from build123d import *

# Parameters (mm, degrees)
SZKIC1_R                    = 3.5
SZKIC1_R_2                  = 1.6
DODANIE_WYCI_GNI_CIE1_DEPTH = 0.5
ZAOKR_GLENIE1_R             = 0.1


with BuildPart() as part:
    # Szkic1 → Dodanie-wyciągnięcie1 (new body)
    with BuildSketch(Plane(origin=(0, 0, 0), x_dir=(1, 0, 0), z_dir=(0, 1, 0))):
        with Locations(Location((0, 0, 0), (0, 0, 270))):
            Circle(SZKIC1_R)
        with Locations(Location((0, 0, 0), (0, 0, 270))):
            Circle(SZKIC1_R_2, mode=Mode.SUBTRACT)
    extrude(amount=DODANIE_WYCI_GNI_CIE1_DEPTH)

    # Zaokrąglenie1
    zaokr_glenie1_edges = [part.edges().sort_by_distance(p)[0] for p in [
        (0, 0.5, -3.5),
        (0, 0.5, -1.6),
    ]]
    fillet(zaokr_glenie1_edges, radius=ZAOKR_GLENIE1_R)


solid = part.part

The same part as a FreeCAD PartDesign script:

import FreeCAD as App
import Part
import Sketcher
from FreeCAD import Vector


def edges_at(feature, points):
    """Names of the edges that pass closest to the given points."""
    edges = feature.Shape.Edges
    near = lambda p: min(range(len(edges)), key=lambda i: edges[i].distToShape(Part.Vertex(*p))[0])
    return sorted({f"Edge{near(p) + 1}" for p in points})

doc = App.newDocument("Part")
body = doc.addObject("PartDesign::Body", "Body")

# Sketch on XZ plane
sketch1 = body.newObject("Sketcher::SketchObject", "Sketch")
sketch1.AttachmentSupport = (doc.getObject("XZ_Plane"), [""])
sketch1.MapMode = "FlatFace"
sketch1.addGeometry([
    Part.Circle(Vector(0, 0, 0), Vector(0, 0, 1), 3.5),
    Part.Circle(Vector(0, 0, 0), Vector(0, 0, 1), 1.6),
], False)
sketch1.addConstraint([
    Sketcher.Constraint("Coincident", 0, 3, -1, 1),
    Sketcher.Constraint("Coincident", 1, 3, -1, 1),
    Sketcher.Constraint("Diameter", 0, 7.0),
    Sketcher.Constraint("Diameter", 1, 3.2),
])
pad1 = body.newObject("PartDesign::Pad", "Pad")
pad1.Profile = sketch1
pad1.Length = 0.5
pad1.Reversed = True
doc.recompute()

fillet = body.newObject("PartDesign::Fillet", "Fillet")
fillet.Base = (pad1, edges_at(pad1, [(0, 0.5, -3.5), (0, 0.5, -1.6)]))
fillet.Radius = 0.1

doc.recompute()
